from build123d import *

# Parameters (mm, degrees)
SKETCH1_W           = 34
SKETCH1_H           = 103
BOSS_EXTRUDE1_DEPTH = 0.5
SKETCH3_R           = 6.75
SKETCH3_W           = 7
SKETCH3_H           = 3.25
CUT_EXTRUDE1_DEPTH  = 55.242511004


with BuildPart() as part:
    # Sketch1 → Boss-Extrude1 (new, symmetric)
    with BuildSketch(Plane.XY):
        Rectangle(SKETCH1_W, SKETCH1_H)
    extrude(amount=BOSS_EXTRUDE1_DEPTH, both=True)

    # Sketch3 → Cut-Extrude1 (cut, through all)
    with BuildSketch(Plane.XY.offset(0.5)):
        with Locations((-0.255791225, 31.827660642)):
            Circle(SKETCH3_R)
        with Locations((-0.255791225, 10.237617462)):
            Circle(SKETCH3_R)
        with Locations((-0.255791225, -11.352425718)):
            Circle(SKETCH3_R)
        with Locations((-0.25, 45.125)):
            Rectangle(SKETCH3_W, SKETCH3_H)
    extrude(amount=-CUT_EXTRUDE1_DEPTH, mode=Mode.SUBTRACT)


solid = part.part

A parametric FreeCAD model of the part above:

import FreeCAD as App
import Part
import Sketcher

V = App.Vector
Q = App.Units.Quantity


def add_polygon(sketch, points):
    """Adds a closed chain of lines whose ends are joined by coincident constraints."""
    first, n = sketch.GeometryCount, len(points)
    for a, b in zip(points, points[1:] + points[:1]):
        sketch.addGeometry(Part.LineSegment(App.Vector(*a, 0), App.Vector(*b, 0)), False)
    for i in range(n):
        sketch.addConstraint(Sketcher.Constraint("Coincident", first + i, 2, first + (i + 1) % n, 1))

doc = App.newDocument("Part")
body = doc.addObject("PartDesign::Body", "Body")

# Sketch on XY plane
sketch1 = body.newObject("Sketcher::SketchObject", "Sketch")
sketch1.AttachmentSupport = (doc.getObject("XY_Plane"), [""])
sketch1.MapMode = "FlatFace"
add_polygon(sketch1, [(-17, 52), (-17, -52), (17, -52), (17, 52)])  # lines 0-3
sketch1.addConstraint(Sketcher.Constraint("Vertical", 0))
sketch1.addConstraint(Sketcher.Constraint("Horizontal", 1))
sketch1.addConstraint(Sketcher.Constraint("Vertical", 2))
sketch1.addConstraint(Sketcher.Constraint("Horizontal", 3))
sketch1.addConstraint(Sketcher.Constraint("Symmetric", 0, 2, 2, 2, -1, 1))
sketch1.addConstraint(Sketcher.Constraint("DistanceX", 1, 1, 1, 2, Q("34 mm")))
sketch1.addConstraint(Sketcher.Constraint("DistanceY", 0, 2, 0, 1, Q("103 mm")))
pad1 = body.newObject("PartDesign::Pad", "Pad")
pad1.Profile = sketch1
pad1.Length = 1
pad1.Midplane = True

# Sketch on XY plane
sketch2 = body.newObject("Sketcher::SketchObject", "Sketch001")
sketch2.AttachmentSupport = (doc.getObject("XY_Plane"), [""])
sketch2.MapMode = "FlatFace"
sketch2.AttachmentOffset = App.Placement(V(0, 0, 0.5), App.Rotation())
sketch2.addGeometry(Part.Circle(V(-0.3, 31.8, 0), V(0, 0, 1), 6.8), False)  # 0
sketch2.addGeometry(Part.Circle(V(-0.3, 10.2, 0), V(0, 0, 1), 6.8), False)  # 1
sketch2.addGeometry(Part.Circle(V(-0.3, -11.4, 0), V(0, 0, 1), 6.8), False)  # 2
add_polygon(sketch2, [(-3.8, 46.8), (-3.8, 43.5), (3.2, 43.5), (3.2, 46.8)])  # lines 3-6
sketch2.addConstraint(Sketcher.Constraint("Vertical", 3))
sketch2.addConstraint(Sketcher.Constraint("Horizontal", 4))
sketch2.addConstraint(Sketcher.Constraint("Vertical", 5))
sketch2.addConstraint(Sketcher.Constraint("Horizontal", 6))
sketch2.addConstraint(Sketcher.Constraint("Equal", 0, 1))
sketch2.addConstraint(Sketcher.Constraint("Equal", 1, 2))
sketch2.addConstraint(Sketcher.Constraint("Vertical", 0, 3, 1, 3))
sketch2.addConstraint(Sketcher.Constraint("Vertical", 1, 3, 2, 3))
sketch2.addConstraint(Sketcher.Constraint("Diameter", 0, Q("13.5 mm")))
sketch2.addConstraint(Sketcher.Constraint("DistanceX", 4, 1, 4, 2, Q("7 mm")))
sketch2.addConstraint(Sketcher.Constraint("DistanceY", 3, 2, 3, 1, Q("3.25 mm")))
sketch2.addConstraint(Sketcher.Constraint("DistanceY", -1, 1, 3, 2, Q("43.5 mm")))
sketch2.addConstraint(Sketcher.Constraint("DistanceX", 3, 2, -1, 1, Q("3.75 mm")))
sketch2.addConstraint(Sketcher.Constraint("DistanceX", 0, 3, -1, 1, Q("0.255791 mm")))
sketch2.addConstraint(Sketcher.Constraint("DistanceY", -1, 1, 0, 3, Q("31.827661 mm")))
sketch2.addConstraint(Sketcher.Constraint("DistanceY", -1, 1, 1, 3, Q("10.237617 mm")))
sketch2.addConstraint(Sketcher.Constraint("DistanceY", 2, 3, -1, 1, Q("11.352426 mm")))
pocket1 = body.newObject("PartDesign::Pocket", "Pocket")
pocket1.Profile = sketch2
pocket1.Type = "ThroughAll"

doc.recompute()
